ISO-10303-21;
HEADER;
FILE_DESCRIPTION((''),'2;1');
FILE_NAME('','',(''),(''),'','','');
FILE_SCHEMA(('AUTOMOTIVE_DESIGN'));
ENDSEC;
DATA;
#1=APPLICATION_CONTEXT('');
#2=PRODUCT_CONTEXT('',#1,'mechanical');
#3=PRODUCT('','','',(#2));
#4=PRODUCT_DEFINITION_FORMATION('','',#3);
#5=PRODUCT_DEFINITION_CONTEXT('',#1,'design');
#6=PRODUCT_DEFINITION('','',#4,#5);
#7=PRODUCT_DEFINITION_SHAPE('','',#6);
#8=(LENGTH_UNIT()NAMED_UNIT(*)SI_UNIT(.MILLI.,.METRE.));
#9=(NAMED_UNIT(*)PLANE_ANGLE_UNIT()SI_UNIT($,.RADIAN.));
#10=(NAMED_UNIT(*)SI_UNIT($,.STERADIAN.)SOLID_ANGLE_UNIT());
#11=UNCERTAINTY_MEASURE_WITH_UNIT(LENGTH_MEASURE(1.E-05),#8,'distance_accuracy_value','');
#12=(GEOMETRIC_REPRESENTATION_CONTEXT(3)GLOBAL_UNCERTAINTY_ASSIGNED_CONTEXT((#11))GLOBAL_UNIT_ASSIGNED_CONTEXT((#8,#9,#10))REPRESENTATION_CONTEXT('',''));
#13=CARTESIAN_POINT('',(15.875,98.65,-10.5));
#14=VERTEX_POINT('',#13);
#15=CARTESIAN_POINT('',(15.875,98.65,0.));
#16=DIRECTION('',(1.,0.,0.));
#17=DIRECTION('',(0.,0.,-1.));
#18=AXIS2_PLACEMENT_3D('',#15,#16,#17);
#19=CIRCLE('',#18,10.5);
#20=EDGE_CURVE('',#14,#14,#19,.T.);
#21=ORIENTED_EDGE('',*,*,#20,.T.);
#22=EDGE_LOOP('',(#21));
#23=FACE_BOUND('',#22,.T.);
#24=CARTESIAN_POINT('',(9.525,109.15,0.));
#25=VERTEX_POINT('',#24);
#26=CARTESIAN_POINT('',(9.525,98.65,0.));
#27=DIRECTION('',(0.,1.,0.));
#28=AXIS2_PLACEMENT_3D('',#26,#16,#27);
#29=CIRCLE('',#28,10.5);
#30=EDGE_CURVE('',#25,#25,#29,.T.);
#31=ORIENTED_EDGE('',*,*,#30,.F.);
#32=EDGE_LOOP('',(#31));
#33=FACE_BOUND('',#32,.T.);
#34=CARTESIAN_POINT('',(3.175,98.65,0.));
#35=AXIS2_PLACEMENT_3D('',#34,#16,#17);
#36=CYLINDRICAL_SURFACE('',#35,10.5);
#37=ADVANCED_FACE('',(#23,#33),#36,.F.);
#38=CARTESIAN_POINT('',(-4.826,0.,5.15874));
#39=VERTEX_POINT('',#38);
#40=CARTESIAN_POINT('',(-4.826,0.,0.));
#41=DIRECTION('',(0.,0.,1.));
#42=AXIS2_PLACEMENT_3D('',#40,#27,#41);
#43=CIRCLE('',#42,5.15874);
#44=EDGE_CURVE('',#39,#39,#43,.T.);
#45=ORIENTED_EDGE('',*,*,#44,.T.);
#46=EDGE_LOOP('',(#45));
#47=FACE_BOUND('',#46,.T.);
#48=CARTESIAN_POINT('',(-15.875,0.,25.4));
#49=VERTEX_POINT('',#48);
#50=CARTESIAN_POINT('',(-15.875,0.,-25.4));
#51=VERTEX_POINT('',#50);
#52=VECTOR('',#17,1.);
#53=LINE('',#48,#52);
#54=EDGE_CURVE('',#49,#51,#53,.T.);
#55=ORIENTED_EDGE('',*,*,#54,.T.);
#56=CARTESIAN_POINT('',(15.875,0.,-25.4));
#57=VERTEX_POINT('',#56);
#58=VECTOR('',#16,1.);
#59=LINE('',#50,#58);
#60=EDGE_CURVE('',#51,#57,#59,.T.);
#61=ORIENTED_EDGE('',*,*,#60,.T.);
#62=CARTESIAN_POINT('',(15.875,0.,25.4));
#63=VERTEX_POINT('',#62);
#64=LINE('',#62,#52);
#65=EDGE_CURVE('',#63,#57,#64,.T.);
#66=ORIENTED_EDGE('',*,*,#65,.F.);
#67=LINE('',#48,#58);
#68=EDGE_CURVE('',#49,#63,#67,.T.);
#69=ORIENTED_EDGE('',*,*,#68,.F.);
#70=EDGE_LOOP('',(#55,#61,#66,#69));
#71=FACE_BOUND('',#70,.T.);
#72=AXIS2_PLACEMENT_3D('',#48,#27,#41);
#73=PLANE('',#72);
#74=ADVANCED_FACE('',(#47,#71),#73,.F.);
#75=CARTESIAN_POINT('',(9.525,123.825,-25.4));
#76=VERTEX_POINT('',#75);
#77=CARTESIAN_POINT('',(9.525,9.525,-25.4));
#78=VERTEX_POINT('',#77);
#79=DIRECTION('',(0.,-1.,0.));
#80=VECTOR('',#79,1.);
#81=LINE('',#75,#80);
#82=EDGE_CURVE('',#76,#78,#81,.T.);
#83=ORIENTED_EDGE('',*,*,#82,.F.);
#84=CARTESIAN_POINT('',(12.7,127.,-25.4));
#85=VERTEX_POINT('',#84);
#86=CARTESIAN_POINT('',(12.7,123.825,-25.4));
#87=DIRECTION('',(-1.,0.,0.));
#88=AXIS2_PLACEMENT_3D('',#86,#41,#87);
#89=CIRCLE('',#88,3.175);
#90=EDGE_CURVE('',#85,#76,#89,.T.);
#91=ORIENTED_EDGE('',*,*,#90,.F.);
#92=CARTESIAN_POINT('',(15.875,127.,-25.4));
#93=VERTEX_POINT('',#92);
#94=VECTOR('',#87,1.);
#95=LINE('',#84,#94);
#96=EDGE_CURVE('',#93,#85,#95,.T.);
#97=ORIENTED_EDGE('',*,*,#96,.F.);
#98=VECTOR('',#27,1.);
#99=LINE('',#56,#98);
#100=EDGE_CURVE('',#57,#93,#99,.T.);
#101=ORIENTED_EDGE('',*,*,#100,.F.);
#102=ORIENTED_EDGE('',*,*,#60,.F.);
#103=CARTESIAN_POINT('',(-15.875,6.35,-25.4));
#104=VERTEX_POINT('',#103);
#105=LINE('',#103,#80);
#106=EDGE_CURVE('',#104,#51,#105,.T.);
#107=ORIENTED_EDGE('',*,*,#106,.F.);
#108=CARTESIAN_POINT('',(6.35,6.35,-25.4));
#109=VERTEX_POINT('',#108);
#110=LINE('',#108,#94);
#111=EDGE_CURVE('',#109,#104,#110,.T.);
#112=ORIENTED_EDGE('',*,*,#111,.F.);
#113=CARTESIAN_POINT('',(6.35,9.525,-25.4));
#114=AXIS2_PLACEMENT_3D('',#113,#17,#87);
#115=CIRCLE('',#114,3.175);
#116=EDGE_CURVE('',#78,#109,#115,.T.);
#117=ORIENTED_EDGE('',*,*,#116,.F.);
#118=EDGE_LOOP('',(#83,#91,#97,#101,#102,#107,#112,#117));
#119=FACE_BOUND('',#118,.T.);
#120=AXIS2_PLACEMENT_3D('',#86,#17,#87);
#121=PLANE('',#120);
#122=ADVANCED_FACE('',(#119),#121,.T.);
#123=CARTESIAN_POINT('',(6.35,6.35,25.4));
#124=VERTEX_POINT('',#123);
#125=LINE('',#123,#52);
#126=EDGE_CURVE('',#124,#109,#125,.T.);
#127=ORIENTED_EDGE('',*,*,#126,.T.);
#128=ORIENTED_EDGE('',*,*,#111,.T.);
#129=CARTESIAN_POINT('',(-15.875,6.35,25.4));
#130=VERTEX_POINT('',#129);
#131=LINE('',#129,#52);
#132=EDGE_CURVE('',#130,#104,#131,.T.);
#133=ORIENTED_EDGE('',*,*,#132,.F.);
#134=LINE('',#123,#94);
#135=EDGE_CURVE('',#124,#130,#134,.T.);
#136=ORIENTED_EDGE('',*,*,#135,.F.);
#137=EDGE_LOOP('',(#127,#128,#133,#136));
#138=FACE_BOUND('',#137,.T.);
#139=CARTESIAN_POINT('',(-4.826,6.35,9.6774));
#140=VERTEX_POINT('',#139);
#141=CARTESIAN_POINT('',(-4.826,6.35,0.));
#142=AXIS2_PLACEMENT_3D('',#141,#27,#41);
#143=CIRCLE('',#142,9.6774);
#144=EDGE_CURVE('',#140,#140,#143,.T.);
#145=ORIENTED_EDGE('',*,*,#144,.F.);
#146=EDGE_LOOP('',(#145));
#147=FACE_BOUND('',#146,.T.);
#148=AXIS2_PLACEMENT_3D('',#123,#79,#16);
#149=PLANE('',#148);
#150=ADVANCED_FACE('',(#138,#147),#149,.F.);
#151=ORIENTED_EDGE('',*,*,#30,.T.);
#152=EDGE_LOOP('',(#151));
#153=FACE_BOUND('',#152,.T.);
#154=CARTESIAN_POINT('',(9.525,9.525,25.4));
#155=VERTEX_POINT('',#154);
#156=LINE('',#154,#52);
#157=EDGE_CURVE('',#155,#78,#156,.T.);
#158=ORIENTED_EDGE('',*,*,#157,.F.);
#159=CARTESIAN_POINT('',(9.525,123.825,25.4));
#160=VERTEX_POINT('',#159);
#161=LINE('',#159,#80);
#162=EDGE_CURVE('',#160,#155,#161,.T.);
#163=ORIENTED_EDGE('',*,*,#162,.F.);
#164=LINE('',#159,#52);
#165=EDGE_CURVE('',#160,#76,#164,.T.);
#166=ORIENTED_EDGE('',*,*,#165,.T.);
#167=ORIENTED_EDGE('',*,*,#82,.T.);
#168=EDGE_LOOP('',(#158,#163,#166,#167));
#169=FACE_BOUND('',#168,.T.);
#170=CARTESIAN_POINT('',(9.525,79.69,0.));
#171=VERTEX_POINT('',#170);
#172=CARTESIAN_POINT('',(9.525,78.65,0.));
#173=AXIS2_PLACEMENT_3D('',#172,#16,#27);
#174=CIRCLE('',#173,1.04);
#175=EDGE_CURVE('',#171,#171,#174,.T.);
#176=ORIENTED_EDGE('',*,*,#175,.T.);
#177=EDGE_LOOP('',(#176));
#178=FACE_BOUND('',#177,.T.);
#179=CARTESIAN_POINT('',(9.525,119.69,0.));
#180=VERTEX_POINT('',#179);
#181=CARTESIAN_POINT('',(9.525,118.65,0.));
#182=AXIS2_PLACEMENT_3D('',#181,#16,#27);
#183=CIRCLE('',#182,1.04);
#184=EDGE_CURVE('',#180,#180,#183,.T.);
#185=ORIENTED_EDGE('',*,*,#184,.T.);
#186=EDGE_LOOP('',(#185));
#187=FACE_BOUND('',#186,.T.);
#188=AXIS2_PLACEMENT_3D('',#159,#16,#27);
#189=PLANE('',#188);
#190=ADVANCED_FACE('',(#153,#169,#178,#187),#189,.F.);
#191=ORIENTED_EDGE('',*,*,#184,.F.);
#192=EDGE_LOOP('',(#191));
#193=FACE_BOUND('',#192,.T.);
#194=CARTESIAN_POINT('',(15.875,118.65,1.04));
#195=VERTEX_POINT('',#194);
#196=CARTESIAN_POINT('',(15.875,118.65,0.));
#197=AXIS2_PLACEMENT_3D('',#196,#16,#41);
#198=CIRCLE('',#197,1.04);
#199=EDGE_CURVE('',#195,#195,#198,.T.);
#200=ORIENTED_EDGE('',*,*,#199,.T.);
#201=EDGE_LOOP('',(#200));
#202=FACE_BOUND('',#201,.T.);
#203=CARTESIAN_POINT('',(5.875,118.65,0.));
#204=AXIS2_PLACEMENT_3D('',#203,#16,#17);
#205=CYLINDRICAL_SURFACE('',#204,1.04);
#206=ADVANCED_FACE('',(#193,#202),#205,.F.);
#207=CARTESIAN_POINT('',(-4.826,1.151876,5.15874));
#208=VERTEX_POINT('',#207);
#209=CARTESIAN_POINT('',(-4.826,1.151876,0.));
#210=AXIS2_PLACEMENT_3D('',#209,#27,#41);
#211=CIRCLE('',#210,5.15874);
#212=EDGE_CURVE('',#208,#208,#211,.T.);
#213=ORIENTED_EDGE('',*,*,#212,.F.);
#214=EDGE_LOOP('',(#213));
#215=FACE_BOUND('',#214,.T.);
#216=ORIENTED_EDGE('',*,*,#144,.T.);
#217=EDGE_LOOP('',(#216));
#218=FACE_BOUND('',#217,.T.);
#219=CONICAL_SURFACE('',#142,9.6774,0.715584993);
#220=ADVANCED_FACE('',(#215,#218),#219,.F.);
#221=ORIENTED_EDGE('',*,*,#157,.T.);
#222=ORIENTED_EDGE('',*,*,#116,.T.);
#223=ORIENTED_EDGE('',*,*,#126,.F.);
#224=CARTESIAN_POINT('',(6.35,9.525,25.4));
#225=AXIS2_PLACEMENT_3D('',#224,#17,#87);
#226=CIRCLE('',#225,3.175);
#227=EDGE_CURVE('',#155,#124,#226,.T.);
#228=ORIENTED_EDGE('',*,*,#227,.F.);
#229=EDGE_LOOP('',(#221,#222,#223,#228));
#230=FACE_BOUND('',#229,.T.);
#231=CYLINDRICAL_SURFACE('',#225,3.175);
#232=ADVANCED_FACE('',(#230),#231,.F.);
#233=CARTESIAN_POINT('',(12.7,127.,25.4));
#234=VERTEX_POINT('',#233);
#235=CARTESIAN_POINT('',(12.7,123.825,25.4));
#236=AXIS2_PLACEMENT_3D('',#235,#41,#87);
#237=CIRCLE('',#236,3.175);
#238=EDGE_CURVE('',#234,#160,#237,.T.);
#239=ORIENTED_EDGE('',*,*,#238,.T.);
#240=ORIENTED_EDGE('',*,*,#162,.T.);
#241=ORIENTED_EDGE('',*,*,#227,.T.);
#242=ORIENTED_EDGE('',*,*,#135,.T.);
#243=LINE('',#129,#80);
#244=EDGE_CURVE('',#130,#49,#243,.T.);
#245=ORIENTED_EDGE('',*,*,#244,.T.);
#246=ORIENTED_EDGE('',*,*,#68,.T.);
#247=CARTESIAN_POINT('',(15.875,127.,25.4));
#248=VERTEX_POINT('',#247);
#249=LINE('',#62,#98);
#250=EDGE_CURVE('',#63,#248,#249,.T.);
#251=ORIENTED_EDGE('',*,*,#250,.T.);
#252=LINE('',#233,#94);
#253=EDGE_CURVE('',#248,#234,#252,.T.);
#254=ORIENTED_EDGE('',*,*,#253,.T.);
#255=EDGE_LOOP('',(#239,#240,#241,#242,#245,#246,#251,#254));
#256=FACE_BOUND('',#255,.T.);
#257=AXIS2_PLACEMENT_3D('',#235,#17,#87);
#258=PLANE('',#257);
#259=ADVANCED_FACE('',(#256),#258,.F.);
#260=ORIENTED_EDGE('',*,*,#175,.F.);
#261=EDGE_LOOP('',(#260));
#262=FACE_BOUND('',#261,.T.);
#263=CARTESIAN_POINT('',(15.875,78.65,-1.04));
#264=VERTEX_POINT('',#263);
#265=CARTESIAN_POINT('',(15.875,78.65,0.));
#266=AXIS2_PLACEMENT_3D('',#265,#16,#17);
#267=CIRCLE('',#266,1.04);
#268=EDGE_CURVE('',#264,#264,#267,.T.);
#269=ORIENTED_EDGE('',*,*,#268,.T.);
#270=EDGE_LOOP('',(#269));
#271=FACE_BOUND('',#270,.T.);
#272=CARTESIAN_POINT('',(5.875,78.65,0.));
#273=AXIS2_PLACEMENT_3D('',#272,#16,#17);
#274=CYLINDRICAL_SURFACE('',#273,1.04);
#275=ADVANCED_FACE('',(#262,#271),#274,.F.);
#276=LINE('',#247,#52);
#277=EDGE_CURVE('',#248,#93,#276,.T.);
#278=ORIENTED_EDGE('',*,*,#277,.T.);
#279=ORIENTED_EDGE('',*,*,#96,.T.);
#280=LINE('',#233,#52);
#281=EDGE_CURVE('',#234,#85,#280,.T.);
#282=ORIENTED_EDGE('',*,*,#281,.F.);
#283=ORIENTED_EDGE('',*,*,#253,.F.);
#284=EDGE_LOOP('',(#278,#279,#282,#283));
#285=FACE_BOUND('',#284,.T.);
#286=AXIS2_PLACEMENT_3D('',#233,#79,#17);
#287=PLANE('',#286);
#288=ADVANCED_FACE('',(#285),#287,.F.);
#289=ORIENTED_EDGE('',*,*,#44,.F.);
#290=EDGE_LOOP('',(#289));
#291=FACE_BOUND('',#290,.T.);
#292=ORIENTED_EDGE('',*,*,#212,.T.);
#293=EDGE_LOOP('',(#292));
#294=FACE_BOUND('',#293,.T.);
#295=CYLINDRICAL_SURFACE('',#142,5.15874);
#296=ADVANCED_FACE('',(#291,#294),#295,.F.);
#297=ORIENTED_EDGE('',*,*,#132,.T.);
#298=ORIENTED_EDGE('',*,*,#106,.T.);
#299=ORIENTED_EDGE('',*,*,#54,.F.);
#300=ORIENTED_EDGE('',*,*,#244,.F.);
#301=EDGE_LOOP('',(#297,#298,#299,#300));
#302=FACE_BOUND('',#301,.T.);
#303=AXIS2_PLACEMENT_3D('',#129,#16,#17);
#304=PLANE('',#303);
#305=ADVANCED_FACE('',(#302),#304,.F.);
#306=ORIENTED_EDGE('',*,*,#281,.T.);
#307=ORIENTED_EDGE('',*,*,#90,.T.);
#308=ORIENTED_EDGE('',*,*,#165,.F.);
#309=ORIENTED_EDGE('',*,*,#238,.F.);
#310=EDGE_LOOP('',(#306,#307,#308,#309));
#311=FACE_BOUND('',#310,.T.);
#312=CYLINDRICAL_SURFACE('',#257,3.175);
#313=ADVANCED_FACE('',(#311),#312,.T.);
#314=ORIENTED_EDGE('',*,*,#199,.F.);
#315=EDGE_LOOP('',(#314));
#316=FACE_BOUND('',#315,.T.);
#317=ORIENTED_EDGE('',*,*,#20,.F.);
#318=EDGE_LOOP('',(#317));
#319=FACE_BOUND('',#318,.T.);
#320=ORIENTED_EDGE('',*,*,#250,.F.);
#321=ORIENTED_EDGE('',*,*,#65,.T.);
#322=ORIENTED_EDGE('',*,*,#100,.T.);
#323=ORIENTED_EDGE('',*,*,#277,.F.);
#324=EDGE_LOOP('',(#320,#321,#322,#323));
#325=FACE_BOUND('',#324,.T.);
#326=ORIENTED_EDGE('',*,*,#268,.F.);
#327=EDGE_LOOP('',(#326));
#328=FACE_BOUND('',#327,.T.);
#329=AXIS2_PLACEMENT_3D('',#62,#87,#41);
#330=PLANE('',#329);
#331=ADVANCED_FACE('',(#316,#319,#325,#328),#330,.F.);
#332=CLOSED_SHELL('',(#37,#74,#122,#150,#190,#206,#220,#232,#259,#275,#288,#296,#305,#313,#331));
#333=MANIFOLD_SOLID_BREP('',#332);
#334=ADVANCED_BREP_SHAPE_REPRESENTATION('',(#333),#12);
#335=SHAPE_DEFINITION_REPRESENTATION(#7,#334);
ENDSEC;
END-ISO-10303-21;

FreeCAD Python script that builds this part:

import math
import FreeCAD as App
import Part
import Sketcher
Q = App.Units.Quantity

doc = App.newDocument("Part")
body = doc.addObject("PartDesign::Body", "Body")

# Sketch on XY plane
sketch1 = body.newObject("Sketcher::SketchObject", "Sketch")
sketch1.AttachmentSupport = (doc.getObject("XY_Plane"), [""])
sketch1.MapMode = "FlatFace"
sketch1.addGeometry([
    Part.LineSegment(App.Vector(-15.9, 0, 0), App.Vector(15.9, 0, 0)),  # 0
    Part.LineSegment(App.Vector(15.9, 0, 0), App.Vector(15.9, 127, 0)),  # 1
    Part.LineSegment(App.Vector(15.9, 127, 0), App.Vector(12.7, 127, 0)),  # 2
    Part.ArcOfCircle(Part.Circle(App.Vector(12.7, 123.8, 0), App.Vector(0, 0, 1), 3.2), math.radians(90), math.radians(180)),  # 3
    Part.LineSegment(App.Vector(9.5, 123.8, 0), App.Vector(9.5, 9.5, 0)),  # 4
    Part.ArcOfCircle(Part.Circle(App.Vector(6.3, 9.5, 0), App.Vector(0, 0, 1), 3.2), math.radians(-90), math.radians(0)),  # 5
    Part.LineSegment(App.Vector(6.3, 6.3, 0), App.Vector(-15.9, 6.3, 0)),  # 6
    Part.LineSegment(App.Vector(-15.9, 6.3, 0), App.Vector(-15.9, 0, 0)),  # 7
], False)
sketch1.addConstraint([
    Sketcher.Constraint("Coincident", 0, 2, 1, 1),
    Sketcher.Constraint("Coincident", 1, 2, 2, 1),
    Sketcher.Constraint("Tangent", 2, 2, 3, 1),
    Sketcher.Constraint("Tangent", 3, 2, 4, 1),
    Sketcher.Constraint("Tangent", 4, 2, 5, 2),
    Sketcher.Constraint("Tangent", 5, 1, 6, 1),
    Sketcher.Constraint("Coincident", 6, 2, 7, 1),
    Sketcher.Constraint("Coincident", 7, 2, 0, 1),
    Sketcher.Constraint("Horizontal", 0),
    Sketcher.Constraint("Vertical", 1),
    Sketcher.Constraint("Horizontal", 2),
    Sketcher.Constraint("Vertical", 4),
    Sketcher.Constraint("Horizontal", 6),
    Sketcher.Constraint("Vertical", 7),
    Sketcher.Constraint("Equal", 3, 5),
    Sketcher.Constraint("Symmetric", 0, 2, 7, 2, -1, 1),
    Sketcher.Constraint("DistanceY", 1, 1, 1, 2, Q("5 in")),
    Sketcher.Constraint("DistanceY", 4, 2, 4, 1, Q("4.5 in")),
    Sketcher.Constraint("Radius", 3, Q("0.125 in")),
    Sketcher.Constraint("DistanceX", 6, 2, 4, 2, Q("1 in")),
    Sketcher.Constraint("DistanceX", 0, 1, 0, 2, Q("1.25 in")),
])
pad1 = body.newObject("PartDesign::Pad", "Pad")
pad1.Profile = sketch1
pad1.Length = Q("2 in")
pad1.Midplane = True

# Sketch on XZ plane
sketch2 = body.newObject("Sketcher::SketchObject", "Sketch001")
sketch2.AttachmentSupport = (doc.getObject("XZ_Plane"), [""])
sketch2.MapMode = "FlatFace"
sketch2.addGeometry(Part.Circle(App.Vector(-4.8, 0, 0), App.Vector(0, 0, 1), 4.8), False)
sketch2.addConstraint([
    Sketcher.Constraint("PointOnObject", 0, 3, -1),
    Sketcher.Constraint("Diameter", 0, 9.53),
    Sketcher.Constraint("DistanceX", 0, 3, -1, 1, Q("0.19 in")),
])
pocket1 = body.newObject("PartDesign::Pocket", "Pocket")
pocket1.Profile = sketch2
pocket1.Type = "ThroughAll"

# Sketch on YZ plane
sketch3 = body.newObject("Sketcher::SketchObject", "Sketch002")
sketch3.AttachmentSupport = (doc.getObject("YZ_Plane"), [""])
sketch3.MapMode = "FlatFace"
sketch3.AttachmentOffset = App.Placement(App.Vector(0, 0, 0.625 * 25.4), App.Rotation())
sketch3.addGeometry(Part.Circle(App.Vector(99, 0, 0), App.Vector(0, 0, 1), 10), False)
sketch3.addConstraint([
    Sketcher.Constraint("PointOnObject", 0, 3, -1),
    Sketcher.Constraint("Diameter", 0, 21.0),
    Sketcher.Constraint("DistanceX", -1, 1, 0, 3, 98.65),
])
pocket2 = body.newObject("PartDesign::Pocket", "Pocket001")
pocket2.Profile = sketch3
pocket2.Length = Q("0.5 in")

# Sketch on YZ plane
sketch4 = body.newObject("Sketcher::SketchObject", "Sketch003")
sketch4.AttachmentSupport = (doc.getObject("YZ_Plane"), [""])
sketch4.MapMode = "FlatFace"
sketch4.AttachmentOffset = App.Placement(App.Vector(0, 0, 0.625 * 25.4), App.Rotation())
sketch4.addGeometry([
    Part.Circle(App.Vector(78.7, 0, 0), App.Vector(0, 0, 1), 1),
    Part.Circle(App.Vector(118.7, 0, 0), App.Vector(0, 0, 1), 1),
], False)
sketch4.addConstraint([
    Sketcher.Constraint("Equal", 0, 1),
    Sketcher.Constraint("PointOnObject", 0, 3, -1),
    Sketcher.Constraint("PointOnObject", 1, 3, -1),
    Sketcher.Constraint("Diameter", 0, 2.08),
    Sketcher.Constraint("DistanceX", -1, 1, 0, 3, 78.65),
    Sketcher.Constraint("DistanceX", -1, 1, 1, 3, 118.65),
])
pocket3 = body.newObject("PartDesign::Pocket", "Pocket002")
pocket3.Profile = sketch4
pocket3.Length = 10

# Sketch on YZ plane
sketch5 = body.newObject("Sketcher::SketchObject", "Sketch004")
sketch5.AttachmentSupport = (doc.getObject("YZ_Plane"), [""])
sketch5.MapMode = "FlatFace"
sketch5.AttachmentOffset = App.Placement(App.Vector(0, 0, -0.19 * 25.4), App.Rotation())
sketch5.addGeometry([
    Part.LineSegment(App.Vector(0, 0, 0), App.Vector(6.3, 0, 0)),  # 0
    Part.LineSegment(App.Vector(6.3, 0, 0), App.Vector(6.3, 9.7, 0)),  # 1
    Part.LineSegment(App.Vector(6.3, 9.7, 0), App.Vector(1.2, 5.2, 0)),  # 2
    Part.LineSegment(App.Vector(1.2, 5.2, 0), App.Vector(0, 5.2, 0)),  # 3
    Part.LineSegment(App.Vector(0, 5.2, 0), App.Vector(0, 0, 0)),  # 4
], False)
sketch5.addConstraint([
    Sketcher.Constraint("Coincident", 0, 2, 1, 1),
    Sketcher.Constraint("Coincident", 1, 2, 2, 1),
    Sketcher.Constraint("Coincident", 2, 2, 3, 1),
    Sketcher.Constraint("Coincident", 3, 2, 4, 1),
    Sketcher.Constraint("Coincident", 4, 2, 0, 1),
    Sketcher.Constraint("Horizontal", 0),
    Sketcher.Constraint("Vertical", 1),
    Sketcher.Constraint("Horizontal", 3),
    Sketcher.Constraint("Vertical", 4),
    Sketcher.Constraint("Coincident", 4, 2, -1, 1),
    Sketcher.Constraint("Angle", 2, Q("-139 deg")),
    Sketcher.Constraint("DistanceX", 0, 1, 0, 2, Q("0.25 in")),
    Sketcher.Constraint("DistanceY", 1, 1, 1, 2, Q("0.381 in")),
    Sketcher.Constraint("DistanceY", 4, 2, 4, 1, Q("0.2031 in")),
])
groove = body.newObject("PartDesign::Groove", "Groove")
groove.Profile = sketch5
groove.ReferenceAxis = (sketch5, ["H_Axis"])
groove.Angle = 360

doc.recompute()
